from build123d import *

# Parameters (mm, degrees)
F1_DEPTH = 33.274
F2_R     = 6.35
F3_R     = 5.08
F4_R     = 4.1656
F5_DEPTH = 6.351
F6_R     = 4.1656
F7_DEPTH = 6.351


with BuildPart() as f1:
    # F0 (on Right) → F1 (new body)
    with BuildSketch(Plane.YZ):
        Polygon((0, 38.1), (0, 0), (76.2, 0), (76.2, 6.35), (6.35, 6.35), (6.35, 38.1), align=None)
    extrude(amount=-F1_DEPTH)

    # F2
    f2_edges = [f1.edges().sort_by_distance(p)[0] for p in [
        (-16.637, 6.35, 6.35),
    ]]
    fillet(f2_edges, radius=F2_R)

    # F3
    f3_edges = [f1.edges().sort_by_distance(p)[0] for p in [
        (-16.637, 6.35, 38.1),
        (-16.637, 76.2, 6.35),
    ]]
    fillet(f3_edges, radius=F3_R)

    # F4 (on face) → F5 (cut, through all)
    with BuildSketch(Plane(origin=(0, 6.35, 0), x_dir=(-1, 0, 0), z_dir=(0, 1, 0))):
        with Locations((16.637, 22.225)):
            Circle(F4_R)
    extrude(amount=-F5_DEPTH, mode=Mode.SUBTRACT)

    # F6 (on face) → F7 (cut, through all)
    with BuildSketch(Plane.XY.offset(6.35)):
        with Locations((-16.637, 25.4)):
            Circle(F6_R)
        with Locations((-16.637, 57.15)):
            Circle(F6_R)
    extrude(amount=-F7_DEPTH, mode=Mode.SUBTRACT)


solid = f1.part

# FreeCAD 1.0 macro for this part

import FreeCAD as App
import Part
import Sketcher

V = App.Vector
Q = App.Units.Quantity


def edges_at(feature, points):
    """Names of the edges that pass closest to the given points."""
    edges = feature.Shape.Edges
    near = lambda p: min(range(len(edges)), key=lambda i: edges[i].distToShape(Part.Vertex(*p))[0])
    return sorted({f"Edge{near(p) + 1}" for p in points})

doc = App.newDocument("Part")
params = doc.addObject("Spreadsheet::Sheet", "Params")
for row, (alias, value) in enumerate([
    ("sketch1_width", "3 in"),
    ("sketch1_height", "1.5 in"),
    ("sketch1_width2", "2.75 in"),
    ("pad1_length", "1.31 in"),
    ("fillet_radius", "0.25 in"),
    ("fillet2_radius", "0.2 in"),
    ("sketch2_diameter", "0.328 in"),
    ("sketch3_diameter", "0.328 in"),
], start=1):
    params.set(f"A{row}", alias)
    params.set(f"B{row}", "=" + value)
    params.setAlias(f"B{row}", alias)

body = doc.addObject("PartDesign::Body", "Body")

# Sketch on YZ plane
sketch1 = body.newObject("Sketcher::SketchObject", "Sketch")
sketch1.AttachmentSupport = (doc.getObject("YZ_Plane"), [""])
sketch1.MapMode = "FlatFace"
sketch1.addGeometry(Part.LineSegment(V(0, 38, 0), V(0, 0, 0)), False)
sketch1.addGeometry(Part.LineSegment(V(0, 0, 0), V(76, 0, 0)), False)
sketch1.addGeometry(Part.LineSegment(V(76, 0, 0), V(76, 6, 0)), False)
sketch1.addGeometry(Part.LineSegment(V(76, 6, 0), V(6, 6, 0)), False)
sketch1.addGeometry(Part.LineSegment(V(6, 6, 0), V(6, 38, 0)), False)
sketch1.addGeometry(Part.LineSegment(V(6, 38, 0), V(0, 38, 0)), False)
sketch1.addConstraint(Sketcher.Constraint("Coincident", 0, 2, 1, 1))
sketch1.addConstraint(Sketcher.Constraint("Coincident", 1, 2, 2, 1))
sketch1.addConstraint(Sketcher.Constraint("Coincident", 2, 2, 3, 1))
sketch1.addConstraint(Sketcher.Constraint("Coincident", 3, 2, 4, 1))
sketch1.addConstraint(Sketcher.Constraint("Coincident", 4, 2, 5, 1))
sketch1.addConstraint(Sketcher.Constraint("Coincident", 5, 2, 0, 1))
sketch1.addConstraint(Sketcher.Constraint("Vertical", 0))
sketch1.addConstraint(Sketcher.Constraint("Horizontal", 1))
sketch1.addConstraint(Sketcher.Constraint("Vertical", 2))
sketch1.addConstraint(Sketcher.Constraint("Horizontal", 3))
sketch1.addConstraint(Sketcher.Constraint("Vertical", 4))
sketch1.addConstraint(Sketcher.Constraint("Horizontal", 5))
sketch1.addConstraint(Sketcher.Constraint("Coincident", 0, 2, -1, 1))
sketch1.addConstraint(Sketcher.Constraint("Equal", 5, 2))
sketch1.addConstraint(Sketcher.Constraint("DistanceX", 1, 1, 1, 2, Q("3 in")))
sketch1.addConstraint(Sketcher.Constraint("DistanceY", 0, 2, 0, 1, Q("1.5 in")))
sketch1.addConstraint(Sketcher.Constraint("DistanceX", 3, 2, 3, 1, Q("2.75 in")))
sketch1.setExpression("Constraints[14]", "Params.sketch1_width")
sketch1.setExpression("Constraints[15]", "Params.sketch1_height")
sketch1.setExpression("Constraints[16]", "Params.sketch1_width2")
pad1 = body.newObject("PartDesign::Pad", "Pad")
pad1.Profile = sketch1
pad1.setExpression("Length", "Params.pad1_length")
pad1.Reversed = True
doc.recompute()

fillet = body.newObject("PartDesign::Fillet", "Fillet")
fillet.Base = (pad1, edges_at(pad1, [(-16.637, 6.35, 6.35)]))
fillet.setExpression("Radius", "Params.fillet_radius")
doc.recompute()

fillet2 = body.newObject("PartDesign::Fillet", "Fillet001")
fillet2.Base = (fillet, edges_at(fillet, [(-16.637, 6.35, 38.1), (-16.637, 76.2, 6.35)]))
fillet2.setExpression("Radius", "Params.fillet2_radius")

# Sketch on XZ plane
sketch2 = body.newObject("Sketcher::SketchObject", "Sketch001")
sketch2.AttachmentSupport = (doc.getObject("XZ_Plane"), [""])
sketch2.MapMode = "FlatFace"
sketch2.AttachmentOffset = App.Placement(V(0, 0, -0.25 * 25.4), App.Rotation())
sketch2.addGeometry(Part.Circle(V(-16.6, 22.2, 0), V(0, 0, 1), 4.2), False)
sketch2.addConstraint(Sketcher.Constraint("Diameter", 0, Q("0.328 in")))
sketch2.addConstraint(Sketcher.Constraint("DistanceX", 0, 3, -1, 1, Q("0.655 in")))
sketch2.addConstraint(Sketcher.Constraint("DistanceY", -1, 1, 0, 3, Q("0.875 in")))
sketch2.setExpression("Constraints[0]", "Params.sketch2_diameter")
pocket1 = body.newObject("PartDesign::Pocket", "Pocket")
pocket1.Profile = sketch2
pocket1.Type = "ThroughAll"
pocket1.Reversed = True

# Sketch on XY plane
sketch3 = body.newObject("Sketcher::SketchObject", "Sketch002")
sketch3.AttachmentSupport = (doc.getObject("XY_Plane"), [""])
sketch3.MapMode = "FlatFace"
sketch3.AttachmentOffset = App.Placement(V(0, 0, 0.25 * 25.4), App.Rotation())
sketch3.addGeometry(Part.Circle(V(-16.6, 25.4, 0), V(0, 0, 1), 4.2), False)
sketch3.addGeometry(Part.Circle(V(-16.6, 57.1, 0), V(0, 0, 1), 4.2), False)
sketch3.addConstraint(Sketcher.Constraint("Equal", 0, 1))
sketch3.addConstraint(Sketcher.Constraint("Vertical", 0, 3, 1, 3))
sketch3.addConstraint(Sketcher.Constraint("Diameter", 0, Q("0.328 in")))
sketch3.addConstraint(Sketcher.Constraint("DistanceY", -1, 1, 0, 3, Q("1 in")))
sketch3.addConstraint(Sketcher.Constraint("DistanceY", -1, 1, 1, 3, Q("2.25 in")))
sketch3.addConstraint(Sketcher.Constraint("DistanceX", 0, 3, -1, 1, Q("0.655 in")))
sketch3.setExpression("Constraints[2]", "Params.sketch3_diameter")
pocket2 = body.newObject("PartDesign::Pocket", "Pocket001")
pocket2.Profile = sketch3
pocket2.Type = "ThroughAll"

doc.recompute()
